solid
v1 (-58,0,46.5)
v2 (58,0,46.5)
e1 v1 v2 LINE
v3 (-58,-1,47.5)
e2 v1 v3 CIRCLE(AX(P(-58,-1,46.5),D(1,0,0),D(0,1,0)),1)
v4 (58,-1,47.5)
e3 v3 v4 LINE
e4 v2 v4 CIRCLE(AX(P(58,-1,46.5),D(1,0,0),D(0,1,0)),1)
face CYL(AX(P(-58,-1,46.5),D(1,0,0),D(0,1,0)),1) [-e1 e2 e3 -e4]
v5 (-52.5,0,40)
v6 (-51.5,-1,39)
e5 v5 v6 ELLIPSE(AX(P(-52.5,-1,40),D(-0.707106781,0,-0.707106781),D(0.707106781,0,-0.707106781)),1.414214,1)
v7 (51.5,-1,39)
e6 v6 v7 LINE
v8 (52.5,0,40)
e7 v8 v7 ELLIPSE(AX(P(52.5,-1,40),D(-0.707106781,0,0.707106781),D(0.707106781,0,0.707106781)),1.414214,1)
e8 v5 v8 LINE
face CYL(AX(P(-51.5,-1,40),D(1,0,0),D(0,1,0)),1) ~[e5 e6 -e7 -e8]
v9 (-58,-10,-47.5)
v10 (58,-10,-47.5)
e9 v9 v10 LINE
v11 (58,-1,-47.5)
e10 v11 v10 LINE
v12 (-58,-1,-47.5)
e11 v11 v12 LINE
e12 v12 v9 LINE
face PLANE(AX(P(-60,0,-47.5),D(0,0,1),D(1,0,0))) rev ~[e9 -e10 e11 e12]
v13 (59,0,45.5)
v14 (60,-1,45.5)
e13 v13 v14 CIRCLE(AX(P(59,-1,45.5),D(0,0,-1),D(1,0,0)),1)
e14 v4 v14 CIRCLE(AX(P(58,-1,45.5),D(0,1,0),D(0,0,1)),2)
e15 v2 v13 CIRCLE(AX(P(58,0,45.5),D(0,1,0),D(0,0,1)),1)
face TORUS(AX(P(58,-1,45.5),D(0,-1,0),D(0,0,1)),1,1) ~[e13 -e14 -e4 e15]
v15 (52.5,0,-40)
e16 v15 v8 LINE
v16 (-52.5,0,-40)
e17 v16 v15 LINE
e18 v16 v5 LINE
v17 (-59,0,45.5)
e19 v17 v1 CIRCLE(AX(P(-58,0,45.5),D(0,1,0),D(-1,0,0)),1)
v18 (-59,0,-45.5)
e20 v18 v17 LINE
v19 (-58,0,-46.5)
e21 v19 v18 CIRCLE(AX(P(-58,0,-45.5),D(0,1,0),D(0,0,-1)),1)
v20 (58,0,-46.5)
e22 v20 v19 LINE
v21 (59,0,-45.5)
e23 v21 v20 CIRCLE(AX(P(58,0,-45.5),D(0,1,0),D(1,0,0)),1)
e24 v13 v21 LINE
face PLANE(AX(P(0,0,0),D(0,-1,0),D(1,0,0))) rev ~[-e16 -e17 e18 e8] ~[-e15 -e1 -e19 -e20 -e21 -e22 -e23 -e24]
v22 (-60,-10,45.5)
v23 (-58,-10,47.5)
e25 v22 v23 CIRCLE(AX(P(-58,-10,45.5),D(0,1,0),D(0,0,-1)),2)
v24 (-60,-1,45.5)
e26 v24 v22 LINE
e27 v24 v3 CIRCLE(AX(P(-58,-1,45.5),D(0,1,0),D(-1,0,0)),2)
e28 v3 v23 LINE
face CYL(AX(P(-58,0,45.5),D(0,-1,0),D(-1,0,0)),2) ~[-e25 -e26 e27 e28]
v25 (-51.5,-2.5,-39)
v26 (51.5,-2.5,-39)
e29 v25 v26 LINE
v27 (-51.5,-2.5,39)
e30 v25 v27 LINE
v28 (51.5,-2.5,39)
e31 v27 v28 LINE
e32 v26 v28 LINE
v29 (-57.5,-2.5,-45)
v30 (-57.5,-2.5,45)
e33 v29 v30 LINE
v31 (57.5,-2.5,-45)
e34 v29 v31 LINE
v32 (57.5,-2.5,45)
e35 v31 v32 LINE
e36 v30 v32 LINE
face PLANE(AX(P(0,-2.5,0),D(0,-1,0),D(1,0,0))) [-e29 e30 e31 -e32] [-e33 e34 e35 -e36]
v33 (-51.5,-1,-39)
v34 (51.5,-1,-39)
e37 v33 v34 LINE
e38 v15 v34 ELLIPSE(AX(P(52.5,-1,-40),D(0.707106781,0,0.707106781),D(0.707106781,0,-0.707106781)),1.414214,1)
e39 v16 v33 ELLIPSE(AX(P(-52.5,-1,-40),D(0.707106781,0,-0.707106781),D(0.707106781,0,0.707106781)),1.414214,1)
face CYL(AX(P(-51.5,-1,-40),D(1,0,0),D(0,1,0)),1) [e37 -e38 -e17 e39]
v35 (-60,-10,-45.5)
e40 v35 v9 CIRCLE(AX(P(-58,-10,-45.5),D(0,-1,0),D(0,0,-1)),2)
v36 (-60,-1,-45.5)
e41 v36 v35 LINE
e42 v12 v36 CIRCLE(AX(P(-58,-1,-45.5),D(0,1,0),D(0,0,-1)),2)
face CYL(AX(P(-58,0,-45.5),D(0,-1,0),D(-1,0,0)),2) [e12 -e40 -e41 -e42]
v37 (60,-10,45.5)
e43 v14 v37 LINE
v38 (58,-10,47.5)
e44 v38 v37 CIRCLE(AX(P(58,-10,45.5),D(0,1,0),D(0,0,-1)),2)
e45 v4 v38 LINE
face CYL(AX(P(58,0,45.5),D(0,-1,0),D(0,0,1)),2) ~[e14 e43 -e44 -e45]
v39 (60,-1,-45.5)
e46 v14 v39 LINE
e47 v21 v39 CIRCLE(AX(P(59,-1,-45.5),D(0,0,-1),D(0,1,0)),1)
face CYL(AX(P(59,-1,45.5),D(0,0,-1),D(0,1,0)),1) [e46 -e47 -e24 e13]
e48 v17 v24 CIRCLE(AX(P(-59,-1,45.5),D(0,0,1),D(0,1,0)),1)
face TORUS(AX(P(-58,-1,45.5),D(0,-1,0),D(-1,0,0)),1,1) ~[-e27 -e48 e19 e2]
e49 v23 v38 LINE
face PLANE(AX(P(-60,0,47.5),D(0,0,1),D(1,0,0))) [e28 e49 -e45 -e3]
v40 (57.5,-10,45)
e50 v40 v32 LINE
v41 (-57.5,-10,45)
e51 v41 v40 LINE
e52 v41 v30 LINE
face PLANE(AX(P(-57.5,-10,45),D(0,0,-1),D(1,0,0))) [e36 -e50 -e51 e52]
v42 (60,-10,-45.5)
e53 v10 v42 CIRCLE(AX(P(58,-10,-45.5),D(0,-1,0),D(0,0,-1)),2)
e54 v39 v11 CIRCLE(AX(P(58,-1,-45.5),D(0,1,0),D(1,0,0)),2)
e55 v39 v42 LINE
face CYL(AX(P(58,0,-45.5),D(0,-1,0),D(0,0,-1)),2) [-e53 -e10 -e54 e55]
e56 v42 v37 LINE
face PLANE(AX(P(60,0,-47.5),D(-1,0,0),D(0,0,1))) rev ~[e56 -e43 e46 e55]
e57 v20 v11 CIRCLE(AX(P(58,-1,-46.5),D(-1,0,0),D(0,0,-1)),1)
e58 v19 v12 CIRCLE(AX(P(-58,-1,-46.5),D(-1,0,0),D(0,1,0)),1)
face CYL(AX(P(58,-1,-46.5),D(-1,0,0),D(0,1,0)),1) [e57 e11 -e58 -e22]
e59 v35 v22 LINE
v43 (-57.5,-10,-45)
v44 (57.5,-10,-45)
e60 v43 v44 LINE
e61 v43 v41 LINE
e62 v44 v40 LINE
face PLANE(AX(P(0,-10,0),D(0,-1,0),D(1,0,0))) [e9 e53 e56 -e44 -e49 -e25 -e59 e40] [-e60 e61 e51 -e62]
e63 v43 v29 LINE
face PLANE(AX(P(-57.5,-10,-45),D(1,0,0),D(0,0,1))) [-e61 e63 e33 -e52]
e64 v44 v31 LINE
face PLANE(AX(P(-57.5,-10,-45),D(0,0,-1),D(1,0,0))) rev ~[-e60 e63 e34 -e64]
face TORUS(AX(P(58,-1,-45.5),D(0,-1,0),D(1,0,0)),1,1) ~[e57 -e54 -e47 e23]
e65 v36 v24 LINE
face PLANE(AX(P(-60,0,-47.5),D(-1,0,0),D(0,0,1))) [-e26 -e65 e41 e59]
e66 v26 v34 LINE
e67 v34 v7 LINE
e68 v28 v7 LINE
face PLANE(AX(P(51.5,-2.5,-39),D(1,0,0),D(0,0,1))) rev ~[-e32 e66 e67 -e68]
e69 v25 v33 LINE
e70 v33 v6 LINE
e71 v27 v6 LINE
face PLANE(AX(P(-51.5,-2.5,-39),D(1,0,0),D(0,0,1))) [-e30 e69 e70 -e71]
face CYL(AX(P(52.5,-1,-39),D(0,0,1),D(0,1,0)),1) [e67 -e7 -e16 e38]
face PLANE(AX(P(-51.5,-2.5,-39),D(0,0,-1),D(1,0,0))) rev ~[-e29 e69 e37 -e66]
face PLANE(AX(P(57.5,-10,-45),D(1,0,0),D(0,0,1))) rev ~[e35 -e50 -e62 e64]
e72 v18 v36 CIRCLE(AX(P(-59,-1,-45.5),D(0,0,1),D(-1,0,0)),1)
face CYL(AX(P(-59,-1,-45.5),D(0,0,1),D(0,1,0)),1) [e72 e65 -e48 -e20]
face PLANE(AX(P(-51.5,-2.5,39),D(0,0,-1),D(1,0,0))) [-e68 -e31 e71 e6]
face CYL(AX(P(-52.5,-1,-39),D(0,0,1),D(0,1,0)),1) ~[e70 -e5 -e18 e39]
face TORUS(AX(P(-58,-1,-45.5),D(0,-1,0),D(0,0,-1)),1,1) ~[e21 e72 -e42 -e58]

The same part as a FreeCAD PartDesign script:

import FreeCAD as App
import Part
import Sketcher
from FreeCAD import Vector
Q = App.Units.Quantity


def edges_at(feature, points):
    """Names of the edges that pass closest to the given points."""
    edges = feature.Shape.Edges
    near = lambda p: min(range(len(edges)), key=lambda i: edges[i].distToShape(Part.Vertex(*p))[0])
    return sorted({f"Edge{near(p) + 1}" for p in points})


def add_polygon(sketch, points):
    """Adds a closed chain of lines whose ends are joined by coincident constraints."""
    first, n = sketch.GeometryCount, len(points)
    for a, b in zip(points, points[1:] + points[:1]):
        sketch.addGeometry(Part.LineSegment(App.Vector(*a, 0), App.Vector(*b, 0)), False)
    for i in range(n):
        sketch.addConstraint(Sketcher.Constraint("Coincident", first + i, 2, first + (i + 1) % n, 1))

doc = App.newDocument("Part")
body = doc.addObject("PartDesign::Body", "Body")

# Sketch on XZ plane
sketch1 = body.newObject("Sketcher::SketchObject", "Sketch")
sketch1.AttachmentSupport = (doc.getObject("XZ_Plane"), [""])
sketch1.MapMode = "FlatFace"
add_polygon(sketch1, [(-60, 48), (-60, -48), (60, -48), (60, 48)])  # lines 0-3
sketch1.addConstraint(Sketcher.Constraint("Vertical", 0))
sketch1.addConstraint(Sketcher.Constraint("Horizontal", 1))
sketch1.addConstraint(Sketcher.Constraint("Vertical", 2))
sketch1.addConstraint(Sketcher.Constraint("Horizontal", 3))
sketch1.addConstraint(Sketcher.Constraint("Symmetric", 0, 2, 2, 2, -1, 1))
sketch1.addConstraint(Sketcher.Constraint("DistanceX", 1, 1, 1, 2, Q("120 mm")))
sketch1.addConstraint(Sketcher.Constraint("DistanceY", 0, 2, 0, 1, Q("95 mm")))
pad1 = body.newObject("PartDesign::Pad", "Pad")
pad1.Profile = sketch1
pad1.Length = 10

# Sketch on XZ plane
sketch2 = body.newObject("Sketcher::SketchObject", "Sketch001")
sketch2.AttachmentSupport = (doc.getObject("XZ_Plane"), [""])
sketch2.MapMode = "FlatFace"
sketch2.AttachmentOffset = App.Placement(Vector(0, 0, 10), App.Rotation())
add_polygon(sketch2, [(-58, 45), (-58, -45), (58, -45), (58, 45)])  # lines 0-3
sketch2.addConstraint(Sketcher.Constraint("Vertical", 0))
sketch2.addConstraint(Sketcher.Constraint("Horizontal", 1))
sketch2.addConstraint(Sketcher.Constraint("Vertical", 2))
sketch2.addConstraint(Sketcher.Constraint("Horizontal", 3))
sketch2.addConstraint(Sketcher.Constraint("Symmetric", 0, 2, 2, 2, -1, 1))
sketch2.addConstraint(Sketcher.Constraint("DistanceX", 1, 1, 1, 2, Q("115 mm")))
sketch2.addConstraint(Sketcher.Constraint("DistanceY", 0, 2, 0, 1, Q("90 mm")))
pocket1 = body.newObject("PartDesign::Pocket", "Pocket")
pocket1.Profile = sketch2
pocket1.Length = 7.5

# Sketch on XZ plane
sketch3 = body.newObject("Sketcher::SketchObject", "Sketch002")
sketch3.AttachmentSupport = (doc.getObject("XZ_Plane"), [""])
sketch3.MapMode = "FlatFace"
sketch3.AttachmentOffset = App.Placement(Vector(0, 0, 2.5), App.Rotation())
add_polygon(sketch3, [(-52, 39), (-52, -39), (52, -39), (52, 39)])  # lines 0-3
sketch3.addConstraint(Sketcher.Constraint("Vertical", 0))
sketch3.addConstraint(Sketcher.Constraint("Horizontal", 1))
sketch3.addConstraint(Sketcher.Constraint("Vertical", 2))
sketch3.addConstraint(Sketcher.Constraint("Horizontal", 3))
sketch3.addConstraint(Sketcher.Constraint("Symmetric", 0, 2, 2, 2, -1, 1))
sketch3.addConstraint(Sketcher.Constraint("DistanceX", 1, 1, 1, 2, Q("103 mm")))
sketch3.addConstraint(Sketcher.Constraint("DistanceY", 0, 2, 0, 1, Q("78 mm")))
pocket2 = body.newObject("PartDesign::Pocket", "Pocket001")
pocket2.Profile = sketch3
pocket2.Type = "ThroughAll"
doc.recompute()

fillet = body.newObject("PartDesign::Fillet", "Fillet")
fillet.Base = (pocket2, edges_at(pocket2, [
    (60, -5, 47.5),
    (60, -5, -47.5),
    (-60, -5, -47.5),
    (-60, -5, 47.5),
]))
fillet.Radius = 2
doc.recompute()

fillet2 = body.newObject("PartDesign::Fillet", "Fillet001")
fillet2.Base = (fillet, edges_at(fillet, [
    (0, 0, 47.5),
    (59.414, 0, 46.914),
    (-59.414, 0, 46.914),
    (60, 0, 0),
    (-60, 0, 0),
    (59.414, 0, -46.914),
    (-59.414, 0, -46.914),
    (0, 0, -47.5),
    (0, 0, 39),
    (-51.5, 0, 0),
    (0, 0, -39),
    (51.5, 0, 0),
]))
fillet2.Radius = 1

doc.recompute()
